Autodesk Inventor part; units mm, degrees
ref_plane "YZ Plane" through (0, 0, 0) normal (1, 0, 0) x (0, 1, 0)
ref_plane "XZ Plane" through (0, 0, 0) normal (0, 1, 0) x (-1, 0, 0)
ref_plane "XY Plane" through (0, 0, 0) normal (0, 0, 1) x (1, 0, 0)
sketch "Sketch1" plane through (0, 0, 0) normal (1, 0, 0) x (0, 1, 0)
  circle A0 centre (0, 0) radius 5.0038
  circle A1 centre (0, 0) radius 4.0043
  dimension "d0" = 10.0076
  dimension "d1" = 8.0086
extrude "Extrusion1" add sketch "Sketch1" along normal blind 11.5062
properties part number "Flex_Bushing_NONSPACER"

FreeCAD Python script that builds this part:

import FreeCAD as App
import Part
import Sketcher

V = App.Vector
Q = App.Units.Quantity

doc = App.newDocument("Part")
body = doc.addObject("PartDesign::Body", "Body")

sketch1 = body.newObject("Sketcher::SketchObject", "Sketch")
sketch1.AttachmentSupport = (doc.getObject("YZ_Plane"), [""])
sketch1.MapMode = "FlatFace"
sketch1.addGeometry([
    Part.Circle(V(0, 0, 0), V(0, 0, 1), 5.0038),
    Part.Circle(V(0, 0, 0), V(0, 0, 1), 4.0043),
], False)
sketch1.addConstraint([
    Sketcher.Constraint("Coincident", 0, 3, -1, 1),
    Sketcher.Constraint("Coincident", 1, 3, -1, 1),
    Sketcher.Constraint("Diameter", 0, Q("0.394 in")),
    Sketcher.Constraint("Diameter", 1, Q("0.3153 in")),
])
pad1 = body.newObject("PartDesign::Pad", "Pad")
pad1.Profile = sketch1
pad1.Length = Q("0.453 in")

doc.recompute()
